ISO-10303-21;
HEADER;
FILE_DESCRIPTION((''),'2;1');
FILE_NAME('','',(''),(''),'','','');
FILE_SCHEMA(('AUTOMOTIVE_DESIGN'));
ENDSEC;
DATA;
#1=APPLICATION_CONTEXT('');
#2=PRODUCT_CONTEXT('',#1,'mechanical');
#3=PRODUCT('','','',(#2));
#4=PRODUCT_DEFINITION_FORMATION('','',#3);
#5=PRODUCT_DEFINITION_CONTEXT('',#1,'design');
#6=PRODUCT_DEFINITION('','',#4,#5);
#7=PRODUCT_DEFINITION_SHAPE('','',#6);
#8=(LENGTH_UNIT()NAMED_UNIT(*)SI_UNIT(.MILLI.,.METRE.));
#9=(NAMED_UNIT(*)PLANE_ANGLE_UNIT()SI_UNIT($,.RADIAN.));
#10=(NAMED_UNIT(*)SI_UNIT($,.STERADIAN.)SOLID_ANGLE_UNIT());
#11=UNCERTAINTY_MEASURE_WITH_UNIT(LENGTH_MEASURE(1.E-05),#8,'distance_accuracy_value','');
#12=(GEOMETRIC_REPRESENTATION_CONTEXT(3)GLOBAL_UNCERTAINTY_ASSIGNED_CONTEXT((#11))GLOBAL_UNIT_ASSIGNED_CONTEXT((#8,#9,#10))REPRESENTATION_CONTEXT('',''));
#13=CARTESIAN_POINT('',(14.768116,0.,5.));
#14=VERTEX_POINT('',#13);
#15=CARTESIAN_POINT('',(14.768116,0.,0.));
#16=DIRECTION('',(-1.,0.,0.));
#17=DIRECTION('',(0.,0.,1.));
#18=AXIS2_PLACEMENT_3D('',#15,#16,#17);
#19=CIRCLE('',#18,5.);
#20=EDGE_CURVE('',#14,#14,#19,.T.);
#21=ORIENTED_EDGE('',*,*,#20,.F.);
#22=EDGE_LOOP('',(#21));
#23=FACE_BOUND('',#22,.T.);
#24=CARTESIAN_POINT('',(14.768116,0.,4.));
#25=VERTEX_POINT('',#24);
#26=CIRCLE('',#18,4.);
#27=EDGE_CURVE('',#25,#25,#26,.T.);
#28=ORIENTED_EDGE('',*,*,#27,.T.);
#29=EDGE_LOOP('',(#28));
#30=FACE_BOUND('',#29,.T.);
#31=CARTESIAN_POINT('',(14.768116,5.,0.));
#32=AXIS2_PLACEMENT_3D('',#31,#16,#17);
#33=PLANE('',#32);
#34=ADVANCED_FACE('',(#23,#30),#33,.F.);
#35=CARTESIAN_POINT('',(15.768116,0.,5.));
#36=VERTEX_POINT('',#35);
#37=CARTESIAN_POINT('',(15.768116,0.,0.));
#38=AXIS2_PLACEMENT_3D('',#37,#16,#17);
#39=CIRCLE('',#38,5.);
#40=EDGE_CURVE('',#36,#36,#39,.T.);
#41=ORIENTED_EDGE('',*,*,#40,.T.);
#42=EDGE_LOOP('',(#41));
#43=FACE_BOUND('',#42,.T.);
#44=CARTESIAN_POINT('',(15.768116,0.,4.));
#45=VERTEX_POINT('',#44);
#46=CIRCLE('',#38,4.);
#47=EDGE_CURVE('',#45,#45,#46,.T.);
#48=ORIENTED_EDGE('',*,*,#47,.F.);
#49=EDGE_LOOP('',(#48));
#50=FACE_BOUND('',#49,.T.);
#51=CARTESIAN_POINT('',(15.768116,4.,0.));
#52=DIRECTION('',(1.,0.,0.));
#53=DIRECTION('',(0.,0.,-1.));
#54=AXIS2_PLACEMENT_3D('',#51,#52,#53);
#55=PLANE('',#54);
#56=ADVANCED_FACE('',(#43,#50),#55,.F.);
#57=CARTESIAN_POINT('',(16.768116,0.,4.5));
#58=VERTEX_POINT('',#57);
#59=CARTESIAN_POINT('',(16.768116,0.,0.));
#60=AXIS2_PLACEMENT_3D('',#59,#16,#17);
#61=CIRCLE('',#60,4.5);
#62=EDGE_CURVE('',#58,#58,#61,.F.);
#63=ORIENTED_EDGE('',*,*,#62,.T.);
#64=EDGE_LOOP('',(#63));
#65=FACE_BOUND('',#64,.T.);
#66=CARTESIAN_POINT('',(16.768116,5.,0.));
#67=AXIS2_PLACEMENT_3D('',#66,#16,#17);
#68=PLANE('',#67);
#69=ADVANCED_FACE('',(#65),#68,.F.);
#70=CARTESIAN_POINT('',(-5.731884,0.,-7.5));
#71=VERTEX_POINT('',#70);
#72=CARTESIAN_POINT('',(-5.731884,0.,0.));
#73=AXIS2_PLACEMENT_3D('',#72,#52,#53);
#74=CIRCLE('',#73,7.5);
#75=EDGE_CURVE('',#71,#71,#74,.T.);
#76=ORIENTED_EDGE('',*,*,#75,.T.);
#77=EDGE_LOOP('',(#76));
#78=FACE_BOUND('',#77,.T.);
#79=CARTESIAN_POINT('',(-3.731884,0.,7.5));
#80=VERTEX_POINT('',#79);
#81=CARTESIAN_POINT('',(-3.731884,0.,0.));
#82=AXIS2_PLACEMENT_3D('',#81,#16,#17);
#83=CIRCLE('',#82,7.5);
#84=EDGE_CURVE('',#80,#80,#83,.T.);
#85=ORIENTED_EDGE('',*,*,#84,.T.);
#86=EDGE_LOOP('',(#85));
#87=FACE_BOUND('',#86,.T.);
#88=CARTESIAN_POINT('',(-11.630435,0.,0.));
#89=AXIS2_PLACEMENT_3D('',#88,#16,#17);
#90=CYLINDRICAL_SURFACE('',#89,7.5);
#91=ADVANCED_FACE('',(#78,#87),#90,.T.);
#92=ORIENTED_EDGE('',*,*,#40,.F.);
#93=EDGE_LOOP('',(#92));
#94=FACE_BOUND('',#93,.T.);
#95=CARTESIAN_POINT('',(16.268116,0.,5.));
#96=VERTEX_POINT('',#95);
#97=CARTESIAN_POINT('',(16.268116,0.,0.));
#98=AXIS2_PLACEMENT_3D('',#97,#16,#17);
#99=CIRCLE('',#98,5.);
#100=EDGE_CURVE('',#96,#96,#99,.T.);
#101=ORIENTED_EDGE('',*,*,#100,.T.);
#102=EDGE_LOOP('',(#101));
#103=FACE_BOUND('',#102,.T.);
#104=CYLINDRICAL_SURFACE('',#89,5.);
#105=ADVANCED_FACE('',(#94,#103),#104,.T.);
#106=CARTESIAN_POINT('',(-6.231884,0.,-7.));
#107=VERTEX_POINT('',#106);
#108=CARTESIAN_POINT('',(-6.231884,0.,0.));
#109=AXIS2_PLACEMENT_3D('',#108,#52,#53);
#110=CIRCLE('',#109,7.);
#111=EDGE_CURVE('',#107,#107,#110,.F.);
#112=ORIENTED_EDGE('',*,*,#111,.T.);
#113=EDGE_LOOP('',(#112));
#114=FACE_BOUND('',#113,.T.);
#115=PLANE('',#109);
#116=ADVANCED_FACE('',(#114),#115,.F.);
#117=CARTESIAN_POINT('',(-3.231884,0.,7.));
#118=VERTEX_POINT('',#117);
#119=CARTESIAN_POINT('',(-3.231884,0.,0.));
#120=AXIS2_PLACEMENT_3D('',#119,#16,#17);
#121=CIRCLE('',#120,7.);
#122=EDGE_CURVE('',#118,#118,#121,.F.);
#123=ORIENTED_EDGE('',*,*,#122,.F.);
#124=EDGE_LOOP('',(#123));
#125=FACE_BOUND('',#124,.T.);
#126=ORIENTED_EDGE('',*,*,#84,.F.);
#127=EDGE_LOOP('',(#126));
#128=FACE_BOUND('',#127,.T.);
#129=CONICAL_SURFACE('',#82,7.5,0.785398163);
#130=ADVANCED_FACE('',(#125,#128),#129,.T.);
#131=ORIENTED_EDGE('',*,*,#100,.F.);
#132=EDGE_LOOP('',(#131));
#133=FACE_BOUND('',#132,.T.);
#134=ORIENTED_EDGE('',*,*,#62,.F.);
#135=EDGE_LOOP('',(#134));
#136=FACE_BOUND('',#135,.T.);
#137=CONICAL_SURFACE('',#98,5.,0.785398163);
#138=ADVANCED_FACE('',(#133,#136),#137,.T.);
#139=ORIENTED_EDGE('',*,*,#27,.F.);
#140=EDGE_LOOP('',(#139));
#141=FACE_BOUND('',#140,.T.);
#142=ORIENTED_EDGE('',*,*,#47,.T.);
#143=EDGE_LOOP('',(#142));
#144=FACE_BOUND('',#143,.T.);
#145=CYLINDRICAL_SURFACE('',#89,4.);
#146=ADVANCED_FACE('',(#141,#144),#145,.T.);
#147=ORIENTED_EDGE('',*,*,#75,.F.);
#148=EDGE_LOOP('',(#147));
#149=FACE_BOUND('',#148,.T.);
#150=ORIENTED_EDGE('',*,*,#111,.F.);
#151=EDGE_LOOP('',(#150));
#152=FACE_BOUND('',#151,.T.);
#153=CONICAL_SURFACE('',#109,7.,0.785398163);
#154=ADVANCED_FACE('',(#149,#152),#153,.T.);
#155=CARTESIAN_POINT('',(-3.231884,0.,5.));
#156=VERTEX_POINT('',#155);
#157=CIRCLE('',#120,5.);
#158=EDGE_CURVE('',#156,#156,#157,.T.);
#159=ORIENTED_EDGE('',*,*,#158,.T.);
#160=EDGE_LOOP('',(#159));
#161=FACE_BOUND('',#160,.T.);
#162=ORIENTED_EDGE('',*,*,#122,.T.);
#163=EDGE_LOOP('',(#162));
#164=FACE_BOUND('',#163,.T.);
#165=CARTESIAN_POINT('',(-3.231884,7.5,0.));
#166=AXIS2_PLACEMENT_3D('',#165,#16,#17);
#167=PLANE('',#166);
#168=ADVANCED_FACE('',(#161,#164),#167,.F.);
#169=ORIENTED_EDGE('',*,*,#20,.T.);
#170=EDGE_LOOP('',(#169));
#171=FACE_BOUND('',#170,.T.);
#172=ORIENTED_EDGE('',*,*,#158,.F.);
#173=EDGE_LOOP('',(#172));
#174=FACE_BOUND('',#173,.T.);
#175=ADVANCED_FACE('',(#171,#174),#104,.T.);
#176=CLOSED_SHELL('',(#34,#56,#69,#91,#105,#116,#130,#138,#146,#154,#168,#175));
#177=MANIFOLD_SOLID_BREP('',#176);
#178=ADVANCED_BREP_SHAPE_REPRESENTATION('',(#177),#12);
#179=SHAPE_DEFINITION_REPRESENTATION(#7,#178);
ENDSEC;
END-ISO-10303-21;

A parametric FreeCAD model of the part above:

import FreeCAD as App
import Part
import Sketcher
from FreeCAD import Vector


def edges_at(feature, points):
    """Names of the edges that pass closest to the given points."""
    edges = feature.Shape.Edges
    near = lambda p: min(range(len(edges)), key=lambda i: edges[i].distToShape(Part.Vertex(*p))[0])
    return sorted({f"Edge{near(p) + 1}" for p in points})

doc = App.newDocument("Part")
body = doc.addObject("PartDesign::Body", "Body")

sketch1 = body.newObject("Sketcher::SketchObject", "Sketch")
sketch1.AttachmentSupport = (doc.getObject("XY_Plane"), [""])
sketch1.MapMode = "FlatFace"
sketch1.addGeometry([
    Part.LineSegment(Vector(-6.2, 7.5, 0), Vector(-6.2, 0, 0)),
    Part.LineSegment(Vector(-6.2, 0, 0), Vector(16.8, 0, 0)),
    Part.LineSegment(Vector(16.8, 0, 0), Vector(16.8, 5, 0)),
    Part.LineSegment(Vector(16.8, 5, 0), Vector(15.8, 5, 0)),
    Part.LineSegment(Vector(15.8, 5, 0), Vector(15.8, 4, 0)),
    Part.LineSegment(Vector(15.8, 4, 0), Vector(14.8, 4, 0)),
    Part.LineSegment(Vector(14.8, 4, 0), Vector(14.8, 5, 0)),
    Part.LineSegment(Vector(14.8, 5, 0), Vector(-3.2, 5, 0)),
    Part.LineSegment(Vector(-3.2, 5, 0), Vector(-3.2, 7.5, 0)),
    Part.LineSegment(Vector(-3.2, 7.5, 0), Vector(-6.2, 7.5, 0)),
], False)
sketch1.addConstraint([
    Sketcher.Constraint("Coincident", 0, 2, 1, 1),
    Sketcher.Constraint("Coincident", 1, 2, 2, 1),
    Sketcher.Constraint("Coincident", 2, 2, 3, 1),
    Sketcher.Constraint("Coincident", 3, 2, 4, 1),
    Sketcher.Constraint("Coincident", 4, 2, 5, 1),
    Sketcher.Constraint("Coincident", 5, 2, 6, 1),
    Sketcher.Constraint("Coincident", 6, 2, 7, 1),
    Sketcher.Constraint("Coincident", 7, 2, 8, 1),
    Sketcher.Constraint("Coincident", 8, 2, 9, 1),
    Sketcher.Constraint("Coincident", 9, 2, 0, 1),
    Sketcher.Constraint("Vertical", 0),
    Sketcher.Constraint("Horizontal", 1),
    Sketcher.Constraint("Vertical", 2),
    Sketcher.Constraint("Horizontal", 3),
    Sketcher.Constraint("Vertical", 4),
    Sketcher.Constraint("Horizontal", 5),
    Sketcher.Constraint("Vertical", 6),
    Sketcher.Constraint("Horizontal", 7),
    Sketcher.Constraint("Vertical", 8),
    Sketcher.Constraint("Horizontal", 9),
    Sketcher.Constraint("PointOnObject", 0, 2, -1),
    Sketcher.Constraint("Horizontal", 3, 2, 6, 2),
    Sketcher.Constraint("Equal", 3, 5),
    Sketcher.Constraint("Equal", 5, 4),
    Sketcher.Constraint("DistanceX", 1, 1, 1, 2, 23.0),
    Sketcher.Constraint("DistanceX", 3, 2, 3, 1, 1.0),
    Sketcher.Constraint("DistanceX", 7, 2, 7, 1, 18.0),
    Sketcher.Constraint("DistanceY", 2, 1, 2, 2, 5.0),
    Sketcher.Constraint("DistanceY", 0, 2, 0, 1, 7.5),
    Sketcher.Constraint("DistanceX", 0, 2, -1, 1, 6.231884),
])
revolution = body.newObject("PartDesign::Revolution", "Revolution")
revolution.Profile = sketch1
revolution.ReferenceAxis = (sketch1, ["H_Axis"])
revolution.Angle = 360
doc.recompute()

chamfer = body.newObject("PartDesign::Chamfer", "Chamfer")
chamfer.Base = (revolution, edges_at(revolution, [(-3.232, 0, -7.5), (-6.232, 0, -7.5), (16.768, 0, -5)]))
chamfer.Size = 0.5

doc.recompute()
